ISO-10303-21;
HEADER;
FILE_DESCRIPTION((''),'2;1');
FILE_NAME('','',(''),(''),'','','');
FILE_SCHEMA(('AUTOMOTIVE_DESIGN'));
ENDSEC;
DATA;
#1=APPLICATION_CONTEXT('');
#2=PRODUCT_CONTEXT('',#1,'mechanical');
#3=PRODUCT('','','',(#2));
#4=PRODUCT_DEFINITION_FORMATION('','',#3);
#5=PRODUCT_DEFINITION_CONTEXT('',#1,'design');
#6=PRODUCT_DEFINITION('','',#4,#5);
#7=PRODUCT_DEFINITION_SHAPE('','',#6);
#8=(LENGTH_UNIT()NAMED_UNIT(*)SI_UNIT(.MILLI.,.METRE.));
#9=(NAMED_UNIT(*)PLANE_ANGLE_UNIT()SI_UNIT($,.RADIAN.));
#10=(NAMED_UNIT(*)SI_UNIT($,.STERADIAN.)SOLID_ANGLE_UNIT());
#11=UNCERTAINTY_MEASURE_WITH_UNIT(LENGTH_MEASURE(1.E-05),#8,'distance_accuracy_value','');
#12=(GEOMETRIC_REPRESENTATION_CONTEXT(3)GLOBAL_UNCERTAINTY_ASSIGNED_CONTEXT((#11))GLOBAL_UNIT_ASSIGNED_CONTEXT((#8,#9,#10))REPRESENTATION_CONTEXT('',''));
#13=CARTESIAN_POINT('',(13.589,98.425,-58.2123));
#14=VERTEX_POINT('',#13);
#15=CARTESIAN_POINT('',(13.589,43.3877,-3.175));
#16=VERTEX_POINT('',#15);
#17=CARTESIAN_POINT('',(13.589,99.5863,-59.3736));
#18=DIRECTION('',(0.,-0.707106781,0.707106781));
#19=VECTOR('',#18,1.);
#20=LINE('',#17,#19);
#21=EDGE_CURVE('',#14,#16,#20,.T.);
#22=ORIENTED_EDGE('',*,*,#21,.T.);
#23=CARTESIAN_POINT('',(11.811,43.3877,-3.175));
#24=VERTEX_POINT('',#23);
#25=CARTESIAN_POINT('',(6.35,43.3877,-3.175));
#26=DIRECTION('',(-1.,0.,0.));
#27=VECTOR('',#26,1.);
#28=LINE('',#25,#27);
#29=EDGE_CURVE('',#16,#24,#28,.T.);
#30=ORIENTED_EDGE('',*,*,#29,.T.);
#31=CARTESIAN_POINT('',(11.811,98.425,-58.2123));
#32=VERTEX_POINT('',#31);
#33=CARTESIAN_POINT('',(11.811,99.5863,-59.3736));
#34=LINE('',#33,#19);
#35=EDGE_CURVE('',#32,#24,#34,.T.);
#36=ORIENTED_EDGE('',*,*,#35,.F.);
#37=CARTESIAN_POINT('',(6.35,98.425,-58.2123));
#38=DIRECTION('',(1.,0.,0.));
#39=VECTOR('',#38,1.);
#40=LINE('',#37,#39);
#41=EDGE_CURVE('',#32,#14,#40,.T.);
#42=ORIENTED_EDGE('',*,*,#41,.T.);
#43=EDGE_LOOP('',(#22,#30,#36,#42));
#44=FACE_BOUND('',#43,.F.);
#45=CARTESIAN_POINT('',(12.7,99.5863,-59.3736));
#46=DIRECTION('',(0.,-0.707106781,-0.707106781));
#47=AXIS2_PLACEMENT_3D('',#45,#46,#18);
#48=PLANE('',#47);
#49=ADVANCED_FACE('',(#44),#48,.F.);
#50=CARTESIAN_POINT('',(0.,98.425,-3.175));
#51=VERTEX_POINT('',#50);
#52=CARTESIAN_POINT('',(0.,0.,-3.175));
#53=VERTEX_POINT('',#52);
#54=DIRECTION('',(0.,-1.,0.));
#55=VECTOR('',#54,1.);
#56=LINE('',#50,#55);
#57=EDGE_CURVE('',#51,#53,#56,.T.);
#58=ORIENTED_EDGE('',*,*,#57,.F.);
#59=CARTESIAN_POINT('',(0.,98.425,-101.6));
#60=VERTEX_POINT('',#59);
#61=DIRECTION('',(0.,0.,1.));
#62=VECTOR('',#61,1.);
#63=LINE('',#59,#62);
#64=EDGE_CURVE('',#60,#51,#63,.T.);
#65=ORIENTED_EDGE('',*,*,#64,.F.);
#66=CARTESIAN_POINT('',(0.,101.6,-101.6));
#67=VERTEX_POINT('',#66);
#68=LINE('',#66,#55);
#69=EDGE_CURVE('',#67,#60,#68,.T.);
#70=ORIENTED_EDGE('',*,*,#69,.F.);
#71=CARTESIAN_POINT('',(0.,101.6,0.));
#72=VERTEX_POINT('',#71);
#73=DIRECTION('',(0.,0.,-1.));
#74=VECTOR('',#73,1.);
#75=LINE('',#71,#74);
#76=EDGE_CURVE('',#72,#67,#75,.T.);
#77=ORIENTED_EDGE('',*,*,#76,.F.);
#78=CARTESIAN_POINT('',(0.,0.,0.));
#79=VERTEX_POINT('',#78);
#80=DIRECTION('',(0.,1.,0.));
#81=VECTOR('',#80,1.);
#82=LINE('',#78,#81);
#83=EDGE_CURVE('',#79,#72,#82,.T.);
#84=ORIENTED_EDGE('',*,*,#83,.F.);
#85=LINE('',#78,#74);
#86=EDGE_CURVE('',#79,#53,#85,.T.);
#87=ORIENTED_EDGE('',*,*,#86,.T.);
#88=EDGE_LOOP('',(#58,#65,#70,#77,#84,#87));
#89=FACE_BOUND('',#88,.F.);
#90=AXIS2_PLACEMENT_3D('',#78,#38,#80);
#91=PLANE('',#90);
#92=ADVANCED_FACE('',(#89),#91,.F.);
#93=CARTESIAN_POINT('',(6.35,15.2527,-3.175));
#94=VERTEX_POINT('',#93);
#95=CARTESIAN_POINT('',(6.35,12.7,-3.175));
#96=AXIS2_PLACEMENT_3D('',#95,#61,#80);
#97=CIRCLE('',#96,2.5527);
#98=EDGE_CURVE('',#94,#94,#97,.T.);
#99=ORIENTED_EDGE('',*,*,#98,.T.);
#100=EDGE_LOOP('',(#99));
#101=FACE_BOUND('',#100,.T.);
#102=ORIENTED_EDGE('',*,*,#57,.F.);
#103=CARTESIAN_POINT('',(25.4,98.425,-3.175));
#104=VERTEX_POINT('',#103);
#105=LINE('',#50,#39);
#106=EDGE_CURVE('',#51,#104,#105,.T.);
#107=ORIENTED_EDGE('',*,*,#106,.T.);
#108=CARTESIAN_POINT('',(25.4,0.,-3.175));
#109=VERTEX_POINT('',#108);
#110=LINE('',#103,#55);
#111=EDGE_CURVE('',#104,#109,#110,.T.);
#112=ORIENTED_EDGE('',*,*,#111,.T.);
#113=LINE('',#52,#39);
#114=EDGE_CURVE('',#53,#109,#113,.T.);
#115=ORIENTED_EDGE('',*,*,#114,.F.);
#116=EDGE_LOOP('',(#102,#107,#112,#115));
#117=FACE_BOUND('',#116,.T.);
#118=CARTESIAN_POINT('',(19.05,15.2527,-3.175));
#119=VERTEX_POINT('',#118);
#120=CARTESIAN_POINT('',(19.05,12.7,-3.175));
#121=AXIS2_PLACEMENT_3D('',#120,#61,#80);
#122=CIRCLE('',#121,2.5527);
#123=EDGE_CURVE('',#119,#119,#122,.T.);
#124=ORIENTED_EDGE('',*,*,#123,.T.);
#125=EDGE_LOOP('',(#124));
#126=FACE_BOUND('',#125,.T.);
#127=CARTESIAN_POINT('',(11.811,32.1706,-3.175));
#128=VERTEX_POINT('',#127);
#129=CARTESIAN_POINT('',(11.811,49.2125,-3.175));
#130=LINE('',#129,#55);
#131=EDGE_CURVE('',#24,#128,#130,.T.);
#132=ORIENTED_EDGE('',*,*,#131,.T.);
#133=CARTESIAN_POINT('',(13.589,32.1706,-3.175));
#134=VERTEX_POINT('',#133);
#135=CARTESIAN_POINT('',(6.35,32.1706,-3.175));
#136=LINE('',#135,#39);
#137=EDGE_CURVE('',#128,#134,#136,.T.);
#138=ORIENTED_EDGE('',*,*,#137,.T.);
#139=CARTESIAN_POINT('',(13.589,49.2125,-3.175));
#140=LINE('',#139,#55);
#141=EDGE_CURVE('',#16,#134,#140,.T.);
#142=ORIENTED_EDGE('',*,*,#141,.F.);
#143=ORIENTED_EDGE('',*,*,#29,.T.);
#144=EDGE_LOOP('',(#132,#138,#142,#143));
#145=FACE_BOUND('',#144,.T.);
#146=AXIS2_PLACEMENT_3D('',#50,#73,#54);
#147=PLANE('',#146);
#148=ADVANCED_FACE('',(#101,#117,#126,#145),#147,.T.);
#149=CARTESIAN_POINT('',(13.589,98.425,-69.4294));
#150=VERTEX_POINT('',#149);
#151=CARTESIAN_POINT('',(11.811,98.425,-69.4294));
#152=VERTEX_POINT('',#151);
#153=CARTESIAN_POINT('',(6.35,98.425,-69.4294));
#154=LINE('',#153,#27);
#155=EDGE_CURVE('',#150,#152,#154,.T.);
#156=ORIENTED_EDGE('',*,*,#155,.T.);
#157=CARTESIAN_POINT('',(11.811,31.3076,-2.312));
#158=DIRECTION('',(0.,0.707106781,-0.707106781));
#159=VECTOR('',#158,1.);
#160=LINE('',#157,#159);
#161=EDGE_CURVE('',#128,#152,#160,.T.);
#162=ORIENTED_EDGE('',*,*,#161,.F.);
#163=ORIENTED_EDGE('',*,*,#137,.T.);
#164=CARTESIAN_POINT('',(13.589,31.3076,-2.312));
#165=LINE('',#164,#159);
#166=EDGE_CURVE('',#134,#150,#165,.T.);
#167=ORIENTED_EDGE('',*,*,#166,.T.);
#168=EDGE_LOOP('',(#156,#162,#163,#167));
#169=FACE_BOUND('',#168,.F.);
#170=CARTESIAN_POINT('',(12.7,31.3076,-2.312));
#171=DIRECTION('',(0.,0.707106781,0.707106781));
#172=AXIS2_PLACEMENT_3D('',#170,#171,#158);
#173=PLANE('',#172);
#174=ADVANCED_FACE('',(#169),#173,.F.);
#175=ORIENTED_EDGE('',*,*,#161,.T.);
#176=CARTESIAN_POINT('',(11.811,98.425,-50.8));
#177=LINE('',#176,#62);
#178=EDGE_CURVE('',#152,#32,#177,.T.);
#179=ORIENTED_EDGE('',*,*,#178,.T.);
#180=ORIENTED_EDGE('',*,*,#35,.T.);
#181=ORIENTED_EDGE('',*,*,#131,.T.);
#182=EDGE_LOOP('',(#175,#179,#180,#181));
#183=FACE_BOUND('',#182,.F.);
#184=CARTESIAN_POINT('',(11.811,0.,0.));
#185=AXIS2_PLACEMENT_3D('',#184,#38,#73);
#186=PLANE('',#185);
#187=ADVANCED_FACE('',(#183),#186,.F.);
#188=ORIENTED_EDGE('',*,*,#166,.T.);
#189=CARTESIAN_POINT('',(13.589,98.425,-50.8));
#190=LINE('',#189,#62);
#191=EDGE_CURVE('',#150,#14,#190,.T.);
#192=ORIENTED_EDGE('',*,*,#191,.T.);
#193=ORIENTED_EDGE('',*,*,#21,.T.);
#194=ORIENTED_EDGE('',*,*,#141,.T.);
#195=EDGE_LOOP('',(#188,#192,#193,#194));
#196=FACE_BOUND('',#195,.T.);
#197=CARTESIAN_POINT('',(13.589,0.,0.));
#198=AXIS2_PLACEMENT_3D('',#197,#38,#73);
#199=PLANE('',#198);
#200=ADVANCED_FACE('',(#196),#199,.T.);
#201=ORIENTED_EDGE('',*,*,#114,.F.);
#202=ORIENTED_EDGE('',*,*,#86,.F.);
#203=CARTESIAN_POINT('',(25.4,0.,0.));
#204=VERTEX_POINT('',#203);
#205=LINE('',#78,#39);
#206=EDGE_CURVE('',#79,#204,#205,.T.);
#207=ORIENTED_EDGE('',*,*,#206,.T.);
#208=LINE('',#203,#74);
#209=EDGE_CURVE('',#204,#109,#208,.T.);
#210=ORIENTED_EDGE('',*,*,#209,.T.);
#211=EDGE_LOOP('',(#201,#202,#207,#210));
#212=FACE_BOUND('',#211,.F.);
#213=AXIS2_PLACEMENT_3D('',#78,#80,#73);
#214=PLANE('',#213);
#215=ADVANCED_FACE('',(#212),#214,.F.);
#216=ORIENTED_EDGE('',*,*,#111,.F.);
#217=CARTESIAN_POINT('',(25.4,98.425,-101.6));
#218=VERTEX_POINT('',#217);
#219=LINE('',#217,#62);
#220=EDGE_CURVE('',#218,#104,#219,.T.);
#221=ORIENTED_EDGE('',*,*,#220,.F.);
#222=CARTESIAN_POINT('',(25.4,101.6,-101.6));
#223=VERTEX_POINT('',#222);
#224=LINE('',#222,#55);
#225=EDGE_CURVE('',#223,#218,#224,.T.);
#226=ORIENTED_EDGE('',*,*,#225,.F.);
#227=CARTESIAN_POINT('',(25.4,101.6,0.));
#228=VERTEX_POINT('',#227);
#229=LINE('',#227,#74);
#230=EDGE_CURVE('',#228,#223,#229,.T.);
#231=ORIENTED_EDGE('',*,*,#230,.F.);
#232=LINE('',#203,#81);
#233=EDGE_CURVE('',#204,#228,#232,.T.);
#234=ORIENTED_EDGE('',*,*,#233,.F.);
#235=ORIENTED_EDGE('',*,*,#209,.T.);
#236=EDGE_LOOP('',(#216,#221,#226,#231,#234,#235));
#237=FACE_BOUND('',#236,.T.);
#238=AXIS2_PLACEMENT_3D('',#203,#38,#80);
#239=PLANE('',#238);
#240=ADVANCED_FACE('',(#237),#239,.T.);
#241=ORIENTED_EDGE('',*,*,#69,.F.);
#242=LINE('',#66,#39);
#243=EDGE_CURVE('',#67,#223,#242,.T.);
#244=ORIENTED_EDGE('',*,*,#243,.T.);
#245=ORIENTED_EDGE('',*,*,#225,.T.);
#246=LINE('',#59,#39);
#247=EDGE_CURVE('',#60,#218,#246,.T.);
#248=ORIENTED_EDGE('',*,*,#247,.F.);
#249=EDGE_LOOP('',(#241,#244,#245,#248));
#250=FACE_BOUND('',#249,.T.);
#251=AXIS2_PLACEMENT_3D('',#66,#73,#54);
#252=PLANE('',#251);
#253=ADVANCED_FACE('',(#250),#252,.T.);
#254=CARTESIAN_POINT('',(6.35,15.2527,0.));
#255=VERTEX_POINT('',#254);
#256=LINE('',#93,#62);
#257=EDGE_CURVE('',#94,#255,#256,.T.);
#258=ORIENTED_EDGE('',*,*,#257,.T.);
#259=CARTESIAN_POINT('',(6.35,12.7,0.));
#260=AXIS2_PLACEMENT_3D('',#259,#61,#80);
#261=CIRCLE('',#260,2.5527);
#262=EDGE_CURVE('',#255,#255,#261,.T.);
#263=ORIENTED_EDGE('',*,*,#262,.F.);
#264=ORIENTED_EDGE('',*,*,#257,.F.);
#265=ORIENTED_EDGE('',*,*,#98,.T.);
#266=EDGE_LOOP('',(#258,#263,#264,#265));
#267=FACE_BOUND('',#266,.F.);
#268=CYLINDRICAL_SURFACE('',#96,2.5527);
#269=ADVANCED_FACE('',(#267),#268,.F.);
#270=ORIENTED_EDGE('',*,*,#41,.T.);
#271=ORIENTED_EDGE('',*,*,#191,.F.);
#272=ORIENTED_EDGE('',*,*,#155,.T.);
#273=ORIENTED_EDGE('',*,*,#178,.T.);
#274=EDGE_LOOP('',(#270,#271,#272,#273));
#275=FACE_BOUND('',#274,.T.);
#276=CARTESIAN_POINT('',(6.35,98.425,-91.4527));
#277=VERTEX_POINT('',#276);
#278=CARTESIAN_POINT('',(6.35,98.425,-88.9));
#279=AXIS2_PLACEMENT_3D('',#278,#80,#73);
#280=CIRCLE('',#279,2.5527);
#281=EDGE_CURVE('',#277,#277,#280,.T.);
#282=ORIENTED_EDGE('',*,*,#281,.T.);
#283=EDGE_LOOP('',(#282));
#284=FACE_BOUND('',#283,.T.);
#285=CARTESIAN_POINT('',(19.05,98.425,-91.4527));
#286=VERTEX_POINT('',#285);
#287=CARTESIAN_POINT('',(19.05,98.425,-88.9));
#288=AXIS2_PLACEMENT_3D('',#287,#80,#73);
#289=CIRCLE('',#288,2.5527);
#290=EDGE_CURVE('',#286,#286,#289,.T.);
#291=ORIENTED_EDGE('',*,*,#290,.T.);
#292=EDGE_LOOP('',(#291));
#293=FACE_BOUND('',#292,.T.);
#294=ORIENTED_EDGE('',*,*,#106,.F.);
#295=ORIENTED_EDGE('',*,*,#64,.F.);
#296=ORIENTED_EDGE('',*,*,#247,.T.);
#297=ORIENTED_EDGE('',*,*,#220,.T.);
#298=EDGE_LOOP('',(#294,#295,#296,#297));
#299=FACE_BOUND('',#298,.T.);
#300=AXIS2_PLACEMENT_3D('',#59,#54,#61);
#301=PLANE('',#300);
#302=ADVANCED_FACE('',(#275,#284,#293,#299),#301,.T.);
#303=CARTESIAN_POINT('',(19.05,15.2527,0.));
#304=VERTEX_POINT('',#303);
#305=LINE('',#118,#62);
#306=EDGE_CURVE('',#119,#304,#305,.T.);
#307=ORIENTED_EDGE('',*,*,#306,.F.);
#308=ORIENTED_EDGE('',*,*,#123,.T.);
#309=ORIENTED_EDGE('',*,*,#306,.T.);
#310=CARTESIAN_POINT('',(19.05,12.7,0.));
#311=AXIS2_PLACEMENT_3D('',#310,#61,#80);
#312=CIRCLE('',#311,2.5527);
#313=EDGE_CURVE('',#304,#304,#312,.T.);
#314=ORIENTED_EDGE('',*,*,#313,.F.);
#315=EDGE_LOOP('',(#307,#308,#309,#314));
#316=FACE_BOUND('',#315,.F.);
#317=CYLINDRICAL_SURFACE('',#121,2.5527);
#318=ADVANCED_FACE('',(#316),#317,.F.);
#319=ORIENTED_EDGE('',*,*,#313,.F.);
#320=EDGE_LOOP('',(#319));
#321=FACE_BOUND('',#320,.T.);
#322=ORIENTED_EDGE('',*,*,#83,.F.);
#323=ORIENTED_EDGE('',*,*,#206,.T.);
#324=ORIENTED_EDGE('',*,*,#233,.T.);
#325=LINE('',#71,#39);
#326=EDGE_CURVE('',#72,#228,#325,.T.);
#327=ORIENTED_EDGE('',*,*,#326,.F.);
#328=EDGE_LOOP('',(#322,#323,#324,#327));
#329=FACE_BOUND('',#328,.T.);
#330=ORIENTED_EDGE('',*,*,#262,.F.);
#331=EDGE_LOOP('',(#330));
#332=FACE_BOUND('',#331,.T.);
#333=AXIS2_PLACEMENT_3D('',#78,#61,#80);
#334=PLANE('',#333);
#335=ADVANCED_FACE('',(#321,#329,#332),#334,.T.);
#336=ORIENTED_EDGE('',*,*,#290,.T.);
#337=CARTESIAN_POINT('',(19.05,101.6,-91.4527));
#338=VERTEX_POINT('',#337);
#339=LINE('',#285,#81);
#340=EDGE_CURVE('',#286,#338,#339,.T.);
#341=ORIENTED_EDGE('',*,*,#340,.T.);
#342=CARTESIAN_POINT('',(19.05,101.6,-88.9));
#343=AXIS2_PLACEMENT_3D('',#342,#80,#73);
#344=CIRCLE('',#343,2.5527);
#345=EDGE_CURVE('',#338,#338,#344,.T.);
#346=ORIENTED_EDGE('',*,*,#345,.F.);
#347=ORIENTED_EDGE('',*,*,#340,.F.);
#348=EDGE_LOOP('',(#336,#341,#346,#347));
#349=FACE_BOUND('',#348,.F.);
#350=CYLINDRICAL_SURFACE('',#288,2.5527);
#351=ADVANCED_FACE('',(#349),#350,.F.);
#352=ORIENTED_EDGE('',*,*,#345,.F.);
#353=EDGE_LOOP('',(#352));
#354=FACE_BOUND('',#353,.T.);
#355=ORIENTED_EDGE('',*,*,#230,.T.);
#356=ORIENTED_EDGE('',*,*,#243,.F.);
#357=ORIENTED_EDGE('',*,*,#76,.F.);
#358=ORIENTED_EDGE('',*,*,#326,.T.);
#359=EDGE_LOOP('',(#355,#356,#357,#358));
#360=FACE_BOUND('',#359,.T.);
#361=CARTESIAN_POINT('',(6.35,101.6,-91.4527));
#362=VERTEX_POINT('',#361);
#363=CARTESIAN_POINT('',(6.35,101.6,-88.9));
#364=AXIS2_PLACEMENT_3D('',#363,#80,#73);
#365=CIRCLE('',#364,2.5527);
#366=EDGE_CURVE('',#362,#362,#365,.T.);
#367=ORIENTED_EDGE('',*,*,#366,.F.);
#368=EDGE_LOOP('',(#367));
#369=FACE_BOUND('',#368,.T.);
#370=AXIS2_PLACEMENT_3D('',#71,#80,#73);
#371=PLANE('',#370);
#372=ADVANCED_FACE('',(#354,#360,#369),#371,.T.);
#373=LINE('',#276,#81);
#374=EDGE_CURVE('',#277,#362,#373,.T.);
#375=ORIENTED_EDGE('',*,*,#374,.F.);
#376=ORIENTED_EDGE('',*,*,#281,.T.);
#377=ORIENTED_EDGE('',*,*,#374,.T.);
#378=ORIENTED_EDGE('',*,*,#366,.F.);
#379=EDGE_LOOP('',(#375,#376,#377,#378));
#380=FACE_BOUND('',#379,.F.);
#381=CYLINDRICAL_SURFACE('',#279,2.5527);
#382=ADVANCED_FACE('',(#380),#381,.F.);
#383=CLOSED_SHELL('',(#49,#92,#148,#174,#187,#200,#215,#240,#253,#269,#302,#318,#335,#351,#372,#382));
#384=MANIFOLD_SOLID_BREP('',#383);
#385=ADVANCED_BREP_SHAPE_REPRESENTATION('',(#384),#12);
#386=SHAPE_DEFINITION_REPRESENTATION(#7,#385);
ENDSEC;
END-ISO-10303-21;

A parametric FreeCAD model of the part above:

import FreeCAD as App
import Part
import Sketcher
Q = App.Units.Quantity


def add_polygon(sketch, points):
    """Adds a closed chain of lines whose ends are joined by coincident constraints."""
    first, n = sketch.GeometryCount, len(points)
    for a, b in zip(points, points[1:] + points[:1]):
        sketch.addGeometry(Part.LineSegment(App.Vector(*a, 0), App.Vector(*b, 0)), False)
    for i in range(n):
        sketch.addConstraint(Sketcher.Constraint("Coincident", first + i, 2, first + (i + 1) % n, 1))

doc = App.newDocument("Part")
body = doc.addObject("PartDesign::Body", "Body")

sketch1 = body.newObject("Sketcher::SketchObject", "Sketch")
sketch1.AttachmentSupport = (doc.getObject("YZ_Plane"), [""])
sketch1.MapMode = "FlatFace"
add_polygon(sketch1, [(101.6, 0), (0, 0), (0, -3.175), (98.425, -3.175), (98.425, -101.6), (101.6, -101.6)])
sketch1.addConstraint(Sketcher.Constraint("Horizontal", 0))
sketch1.addConstraint(Sketcher.Constraint("Vertical", 1))
sketch1.addConstraint(Sketcher.Constraint("Horizontal", 2))
sketch1.addConstraint(Sketcher.Constraint("Vertical", 3))
sketch1.addConstraint(Sketcher.Constraint("Horizontal", 4))
sketch1.addConstraint(Sketcher.Constraint("Vertical", 5))
sketch1.addConstraint(Sketcher.Constraint("Coincident", 0, 2, -1, 1))
sketch1.addConstraint(Sketcher.Constraint("Equal", 4, 1))
sketch1.addConstraint(Sketcher.Constraint("Equal", 2, 3))
sketch1.addConstraint(Sketcher.Constraint("DistanceX", 0, 2, 0, 1, Q("4 in")))
sketch1.addConstraint(Sketcher.Constraint("DistanceX", 4, 1, 4, 2, Q("0.125 in")))
pad1 = body.newObject("PartDesign::Pad", "Pad")
pad1.Profile = sketch1
pad1.Length = Q("1 in")

sketch2 = body.newObject("Sketcher::SketchObject", "Sketch001")
sketch2.AttachmentSupport = (doc.getObject("YZ_Plane"), [""])
sketch2.MapMode = "FlatFace"
sketch2.AttachmentOffset = App.Placement(App.Vector(0, 0, 0.5 * 25.4), App.Rotation())
add_polygon(sketch2, [(42.5247, -2.312), (31.3076, -2.312), (99.5863, -70.5907), (99.5863, -59.3736)])
sketch2.addConstraint(Sketcher.Constraint("Horizontal", 0))
sketch2.addConstraint(Sketcher.Constraint("Vertical", 2))
sketch2.addConstraint(Sketcher.Constraint("Parallel", 1, 3))
sketch2.addConstraint(Sketcher.Constraint("Equal", 0, 2))
sketch2.addConstraint(Sketcher.Constraint("Distance", 1, Q("3.8016 in")))
sketch2.addConstraint(Sketcher.Constraint("DistanceX", 0, 2, 0, 1, 11.217))
sketch2.addConstraint(Sketcher.Constraint("DistanceX", -1, 1, 3, 2, Q("1.6742 in")))
sketch2.addConstraint(Sketcher.Constraint("DistanceY", 0, 2, -1, 1, 2.312))
pad2 = body.newObject("PartDesign::Pad", "Pad001")
pad2.Profile = sketch2
pad2.Length = Q("0.07 in")
pad2.Midplane = True

sketch3 = body.newObject("Sketcher::SketchObject", "Sketch002")
sketch3.AttachmentSupport = (doc.getObject("XZ_Plane"), [""])
sketch3.MapMode = "FlatFace"
sketch3.AttachmentOffset = App.Placement(App.Vector(0, 0, -3.875 * 25.4), App.Rotation())
sketch3.addGeometry(Part.Circle(App.Vector(19.05, -88.9, 0), App.Vector(0, 0, 1), 2.5527), False)
sketch3.addGeometry(Part.Circle(App.Vector(6.35, -88.9, 0), App.Vector(0, 0, 1), 2.5527), False)
sketch3.addConstraint(Sketcher.Constraint("Equal", 0, 1))
sketch3.addConstraint(Sketcher.Constraint("Horizontal", 0, 3, 1, 3))
sketch3.addConstraint(Sketcher.Constraint("Diameter", 0, Q("0.201 in")))
sketch3.addConstraint(Sketcher.Constraint("DistanceY", 0, 3, -1, 1, Q("3.5 in")))
sketch3.addConstraint(Sketcher.Constraint("DistanceX", 1, 3, 0, 3, Q("0.5 in")))
sketch3.addConstraint(Sketcher.Constraint("DistanceX", -1, 1, 0, 3, Q("0.75 in")))
doc.recompute()
hole = body.newObject("PartDesign::Hole", "Hole")
hole.Profile = sketch3
hole.ThreadType = "None"
hole.Diameter = Q("0.201 in")
hole.DepthType = "Dimension"
hole.Depth = Q("1 in")
hole.DrillPoint = "Angled"
hole.DrillPointAngle = 118

sketch4 = body.newObject("Sketcher::SketchObject", "Sketch003")
sketch4.AttachmentSupport = (doc.getObject("XY_Plane"), [""])
sketch4.MapMode = "FlatFace"
sketch4.AttachmentOffset = App.Placement(App.Vector(0, 0, -0.125 * 25.4), App.Rotation())
sketch4.addGeometry(Part.Circle(App.Vector(19.05, 12.7, 0), App.Vector(0, 0, 1), 2.5527), False)
sketch4.addGeometry(Part.Circle(App.Vector(6.35, 12.7, 0), App.Vector(0, 0, 1), 2.5527), False)
sketch4.addConstraint(Sketcher.Constraint("Equal", 0, 1))
sketch4.addConstraint(Sketcher.Constraint("Horizontal", 0, 3, 1, 3))
sketch4.addConstraint(Sketcher.Constraint("Diameter", 0, Q("0.201 in")))
sketch4.addConstraint(Sketcher.Constraint("DistanceY", -1, 1, 0, 3, Q("0.5 in")))
sketch4.addConstraint(Sketcher.Constraint("DistanceX", 1, 3, 0, 3, Q("0.5 in")))
sketch4.addConstraint(Sketcher.Constraint("DistanceX", -1, 1, 0, 3, Q("0.75 in")))
doc.recompute()
hole2 = body.newObject("PartDesign::Hole", "Hole001")
hole2.Profile = sketch4
hole2.ThreadType = "None"
hole2.Diameter = Q("0.201 in")
hole2.DepthType = "Dimension"
hole2.Depth = Q("1 in")
hole2.DrillPoint = "Angled"
hole2.DrillPointAngle = 118
hole2.Reversed = True

doc.recompute()
